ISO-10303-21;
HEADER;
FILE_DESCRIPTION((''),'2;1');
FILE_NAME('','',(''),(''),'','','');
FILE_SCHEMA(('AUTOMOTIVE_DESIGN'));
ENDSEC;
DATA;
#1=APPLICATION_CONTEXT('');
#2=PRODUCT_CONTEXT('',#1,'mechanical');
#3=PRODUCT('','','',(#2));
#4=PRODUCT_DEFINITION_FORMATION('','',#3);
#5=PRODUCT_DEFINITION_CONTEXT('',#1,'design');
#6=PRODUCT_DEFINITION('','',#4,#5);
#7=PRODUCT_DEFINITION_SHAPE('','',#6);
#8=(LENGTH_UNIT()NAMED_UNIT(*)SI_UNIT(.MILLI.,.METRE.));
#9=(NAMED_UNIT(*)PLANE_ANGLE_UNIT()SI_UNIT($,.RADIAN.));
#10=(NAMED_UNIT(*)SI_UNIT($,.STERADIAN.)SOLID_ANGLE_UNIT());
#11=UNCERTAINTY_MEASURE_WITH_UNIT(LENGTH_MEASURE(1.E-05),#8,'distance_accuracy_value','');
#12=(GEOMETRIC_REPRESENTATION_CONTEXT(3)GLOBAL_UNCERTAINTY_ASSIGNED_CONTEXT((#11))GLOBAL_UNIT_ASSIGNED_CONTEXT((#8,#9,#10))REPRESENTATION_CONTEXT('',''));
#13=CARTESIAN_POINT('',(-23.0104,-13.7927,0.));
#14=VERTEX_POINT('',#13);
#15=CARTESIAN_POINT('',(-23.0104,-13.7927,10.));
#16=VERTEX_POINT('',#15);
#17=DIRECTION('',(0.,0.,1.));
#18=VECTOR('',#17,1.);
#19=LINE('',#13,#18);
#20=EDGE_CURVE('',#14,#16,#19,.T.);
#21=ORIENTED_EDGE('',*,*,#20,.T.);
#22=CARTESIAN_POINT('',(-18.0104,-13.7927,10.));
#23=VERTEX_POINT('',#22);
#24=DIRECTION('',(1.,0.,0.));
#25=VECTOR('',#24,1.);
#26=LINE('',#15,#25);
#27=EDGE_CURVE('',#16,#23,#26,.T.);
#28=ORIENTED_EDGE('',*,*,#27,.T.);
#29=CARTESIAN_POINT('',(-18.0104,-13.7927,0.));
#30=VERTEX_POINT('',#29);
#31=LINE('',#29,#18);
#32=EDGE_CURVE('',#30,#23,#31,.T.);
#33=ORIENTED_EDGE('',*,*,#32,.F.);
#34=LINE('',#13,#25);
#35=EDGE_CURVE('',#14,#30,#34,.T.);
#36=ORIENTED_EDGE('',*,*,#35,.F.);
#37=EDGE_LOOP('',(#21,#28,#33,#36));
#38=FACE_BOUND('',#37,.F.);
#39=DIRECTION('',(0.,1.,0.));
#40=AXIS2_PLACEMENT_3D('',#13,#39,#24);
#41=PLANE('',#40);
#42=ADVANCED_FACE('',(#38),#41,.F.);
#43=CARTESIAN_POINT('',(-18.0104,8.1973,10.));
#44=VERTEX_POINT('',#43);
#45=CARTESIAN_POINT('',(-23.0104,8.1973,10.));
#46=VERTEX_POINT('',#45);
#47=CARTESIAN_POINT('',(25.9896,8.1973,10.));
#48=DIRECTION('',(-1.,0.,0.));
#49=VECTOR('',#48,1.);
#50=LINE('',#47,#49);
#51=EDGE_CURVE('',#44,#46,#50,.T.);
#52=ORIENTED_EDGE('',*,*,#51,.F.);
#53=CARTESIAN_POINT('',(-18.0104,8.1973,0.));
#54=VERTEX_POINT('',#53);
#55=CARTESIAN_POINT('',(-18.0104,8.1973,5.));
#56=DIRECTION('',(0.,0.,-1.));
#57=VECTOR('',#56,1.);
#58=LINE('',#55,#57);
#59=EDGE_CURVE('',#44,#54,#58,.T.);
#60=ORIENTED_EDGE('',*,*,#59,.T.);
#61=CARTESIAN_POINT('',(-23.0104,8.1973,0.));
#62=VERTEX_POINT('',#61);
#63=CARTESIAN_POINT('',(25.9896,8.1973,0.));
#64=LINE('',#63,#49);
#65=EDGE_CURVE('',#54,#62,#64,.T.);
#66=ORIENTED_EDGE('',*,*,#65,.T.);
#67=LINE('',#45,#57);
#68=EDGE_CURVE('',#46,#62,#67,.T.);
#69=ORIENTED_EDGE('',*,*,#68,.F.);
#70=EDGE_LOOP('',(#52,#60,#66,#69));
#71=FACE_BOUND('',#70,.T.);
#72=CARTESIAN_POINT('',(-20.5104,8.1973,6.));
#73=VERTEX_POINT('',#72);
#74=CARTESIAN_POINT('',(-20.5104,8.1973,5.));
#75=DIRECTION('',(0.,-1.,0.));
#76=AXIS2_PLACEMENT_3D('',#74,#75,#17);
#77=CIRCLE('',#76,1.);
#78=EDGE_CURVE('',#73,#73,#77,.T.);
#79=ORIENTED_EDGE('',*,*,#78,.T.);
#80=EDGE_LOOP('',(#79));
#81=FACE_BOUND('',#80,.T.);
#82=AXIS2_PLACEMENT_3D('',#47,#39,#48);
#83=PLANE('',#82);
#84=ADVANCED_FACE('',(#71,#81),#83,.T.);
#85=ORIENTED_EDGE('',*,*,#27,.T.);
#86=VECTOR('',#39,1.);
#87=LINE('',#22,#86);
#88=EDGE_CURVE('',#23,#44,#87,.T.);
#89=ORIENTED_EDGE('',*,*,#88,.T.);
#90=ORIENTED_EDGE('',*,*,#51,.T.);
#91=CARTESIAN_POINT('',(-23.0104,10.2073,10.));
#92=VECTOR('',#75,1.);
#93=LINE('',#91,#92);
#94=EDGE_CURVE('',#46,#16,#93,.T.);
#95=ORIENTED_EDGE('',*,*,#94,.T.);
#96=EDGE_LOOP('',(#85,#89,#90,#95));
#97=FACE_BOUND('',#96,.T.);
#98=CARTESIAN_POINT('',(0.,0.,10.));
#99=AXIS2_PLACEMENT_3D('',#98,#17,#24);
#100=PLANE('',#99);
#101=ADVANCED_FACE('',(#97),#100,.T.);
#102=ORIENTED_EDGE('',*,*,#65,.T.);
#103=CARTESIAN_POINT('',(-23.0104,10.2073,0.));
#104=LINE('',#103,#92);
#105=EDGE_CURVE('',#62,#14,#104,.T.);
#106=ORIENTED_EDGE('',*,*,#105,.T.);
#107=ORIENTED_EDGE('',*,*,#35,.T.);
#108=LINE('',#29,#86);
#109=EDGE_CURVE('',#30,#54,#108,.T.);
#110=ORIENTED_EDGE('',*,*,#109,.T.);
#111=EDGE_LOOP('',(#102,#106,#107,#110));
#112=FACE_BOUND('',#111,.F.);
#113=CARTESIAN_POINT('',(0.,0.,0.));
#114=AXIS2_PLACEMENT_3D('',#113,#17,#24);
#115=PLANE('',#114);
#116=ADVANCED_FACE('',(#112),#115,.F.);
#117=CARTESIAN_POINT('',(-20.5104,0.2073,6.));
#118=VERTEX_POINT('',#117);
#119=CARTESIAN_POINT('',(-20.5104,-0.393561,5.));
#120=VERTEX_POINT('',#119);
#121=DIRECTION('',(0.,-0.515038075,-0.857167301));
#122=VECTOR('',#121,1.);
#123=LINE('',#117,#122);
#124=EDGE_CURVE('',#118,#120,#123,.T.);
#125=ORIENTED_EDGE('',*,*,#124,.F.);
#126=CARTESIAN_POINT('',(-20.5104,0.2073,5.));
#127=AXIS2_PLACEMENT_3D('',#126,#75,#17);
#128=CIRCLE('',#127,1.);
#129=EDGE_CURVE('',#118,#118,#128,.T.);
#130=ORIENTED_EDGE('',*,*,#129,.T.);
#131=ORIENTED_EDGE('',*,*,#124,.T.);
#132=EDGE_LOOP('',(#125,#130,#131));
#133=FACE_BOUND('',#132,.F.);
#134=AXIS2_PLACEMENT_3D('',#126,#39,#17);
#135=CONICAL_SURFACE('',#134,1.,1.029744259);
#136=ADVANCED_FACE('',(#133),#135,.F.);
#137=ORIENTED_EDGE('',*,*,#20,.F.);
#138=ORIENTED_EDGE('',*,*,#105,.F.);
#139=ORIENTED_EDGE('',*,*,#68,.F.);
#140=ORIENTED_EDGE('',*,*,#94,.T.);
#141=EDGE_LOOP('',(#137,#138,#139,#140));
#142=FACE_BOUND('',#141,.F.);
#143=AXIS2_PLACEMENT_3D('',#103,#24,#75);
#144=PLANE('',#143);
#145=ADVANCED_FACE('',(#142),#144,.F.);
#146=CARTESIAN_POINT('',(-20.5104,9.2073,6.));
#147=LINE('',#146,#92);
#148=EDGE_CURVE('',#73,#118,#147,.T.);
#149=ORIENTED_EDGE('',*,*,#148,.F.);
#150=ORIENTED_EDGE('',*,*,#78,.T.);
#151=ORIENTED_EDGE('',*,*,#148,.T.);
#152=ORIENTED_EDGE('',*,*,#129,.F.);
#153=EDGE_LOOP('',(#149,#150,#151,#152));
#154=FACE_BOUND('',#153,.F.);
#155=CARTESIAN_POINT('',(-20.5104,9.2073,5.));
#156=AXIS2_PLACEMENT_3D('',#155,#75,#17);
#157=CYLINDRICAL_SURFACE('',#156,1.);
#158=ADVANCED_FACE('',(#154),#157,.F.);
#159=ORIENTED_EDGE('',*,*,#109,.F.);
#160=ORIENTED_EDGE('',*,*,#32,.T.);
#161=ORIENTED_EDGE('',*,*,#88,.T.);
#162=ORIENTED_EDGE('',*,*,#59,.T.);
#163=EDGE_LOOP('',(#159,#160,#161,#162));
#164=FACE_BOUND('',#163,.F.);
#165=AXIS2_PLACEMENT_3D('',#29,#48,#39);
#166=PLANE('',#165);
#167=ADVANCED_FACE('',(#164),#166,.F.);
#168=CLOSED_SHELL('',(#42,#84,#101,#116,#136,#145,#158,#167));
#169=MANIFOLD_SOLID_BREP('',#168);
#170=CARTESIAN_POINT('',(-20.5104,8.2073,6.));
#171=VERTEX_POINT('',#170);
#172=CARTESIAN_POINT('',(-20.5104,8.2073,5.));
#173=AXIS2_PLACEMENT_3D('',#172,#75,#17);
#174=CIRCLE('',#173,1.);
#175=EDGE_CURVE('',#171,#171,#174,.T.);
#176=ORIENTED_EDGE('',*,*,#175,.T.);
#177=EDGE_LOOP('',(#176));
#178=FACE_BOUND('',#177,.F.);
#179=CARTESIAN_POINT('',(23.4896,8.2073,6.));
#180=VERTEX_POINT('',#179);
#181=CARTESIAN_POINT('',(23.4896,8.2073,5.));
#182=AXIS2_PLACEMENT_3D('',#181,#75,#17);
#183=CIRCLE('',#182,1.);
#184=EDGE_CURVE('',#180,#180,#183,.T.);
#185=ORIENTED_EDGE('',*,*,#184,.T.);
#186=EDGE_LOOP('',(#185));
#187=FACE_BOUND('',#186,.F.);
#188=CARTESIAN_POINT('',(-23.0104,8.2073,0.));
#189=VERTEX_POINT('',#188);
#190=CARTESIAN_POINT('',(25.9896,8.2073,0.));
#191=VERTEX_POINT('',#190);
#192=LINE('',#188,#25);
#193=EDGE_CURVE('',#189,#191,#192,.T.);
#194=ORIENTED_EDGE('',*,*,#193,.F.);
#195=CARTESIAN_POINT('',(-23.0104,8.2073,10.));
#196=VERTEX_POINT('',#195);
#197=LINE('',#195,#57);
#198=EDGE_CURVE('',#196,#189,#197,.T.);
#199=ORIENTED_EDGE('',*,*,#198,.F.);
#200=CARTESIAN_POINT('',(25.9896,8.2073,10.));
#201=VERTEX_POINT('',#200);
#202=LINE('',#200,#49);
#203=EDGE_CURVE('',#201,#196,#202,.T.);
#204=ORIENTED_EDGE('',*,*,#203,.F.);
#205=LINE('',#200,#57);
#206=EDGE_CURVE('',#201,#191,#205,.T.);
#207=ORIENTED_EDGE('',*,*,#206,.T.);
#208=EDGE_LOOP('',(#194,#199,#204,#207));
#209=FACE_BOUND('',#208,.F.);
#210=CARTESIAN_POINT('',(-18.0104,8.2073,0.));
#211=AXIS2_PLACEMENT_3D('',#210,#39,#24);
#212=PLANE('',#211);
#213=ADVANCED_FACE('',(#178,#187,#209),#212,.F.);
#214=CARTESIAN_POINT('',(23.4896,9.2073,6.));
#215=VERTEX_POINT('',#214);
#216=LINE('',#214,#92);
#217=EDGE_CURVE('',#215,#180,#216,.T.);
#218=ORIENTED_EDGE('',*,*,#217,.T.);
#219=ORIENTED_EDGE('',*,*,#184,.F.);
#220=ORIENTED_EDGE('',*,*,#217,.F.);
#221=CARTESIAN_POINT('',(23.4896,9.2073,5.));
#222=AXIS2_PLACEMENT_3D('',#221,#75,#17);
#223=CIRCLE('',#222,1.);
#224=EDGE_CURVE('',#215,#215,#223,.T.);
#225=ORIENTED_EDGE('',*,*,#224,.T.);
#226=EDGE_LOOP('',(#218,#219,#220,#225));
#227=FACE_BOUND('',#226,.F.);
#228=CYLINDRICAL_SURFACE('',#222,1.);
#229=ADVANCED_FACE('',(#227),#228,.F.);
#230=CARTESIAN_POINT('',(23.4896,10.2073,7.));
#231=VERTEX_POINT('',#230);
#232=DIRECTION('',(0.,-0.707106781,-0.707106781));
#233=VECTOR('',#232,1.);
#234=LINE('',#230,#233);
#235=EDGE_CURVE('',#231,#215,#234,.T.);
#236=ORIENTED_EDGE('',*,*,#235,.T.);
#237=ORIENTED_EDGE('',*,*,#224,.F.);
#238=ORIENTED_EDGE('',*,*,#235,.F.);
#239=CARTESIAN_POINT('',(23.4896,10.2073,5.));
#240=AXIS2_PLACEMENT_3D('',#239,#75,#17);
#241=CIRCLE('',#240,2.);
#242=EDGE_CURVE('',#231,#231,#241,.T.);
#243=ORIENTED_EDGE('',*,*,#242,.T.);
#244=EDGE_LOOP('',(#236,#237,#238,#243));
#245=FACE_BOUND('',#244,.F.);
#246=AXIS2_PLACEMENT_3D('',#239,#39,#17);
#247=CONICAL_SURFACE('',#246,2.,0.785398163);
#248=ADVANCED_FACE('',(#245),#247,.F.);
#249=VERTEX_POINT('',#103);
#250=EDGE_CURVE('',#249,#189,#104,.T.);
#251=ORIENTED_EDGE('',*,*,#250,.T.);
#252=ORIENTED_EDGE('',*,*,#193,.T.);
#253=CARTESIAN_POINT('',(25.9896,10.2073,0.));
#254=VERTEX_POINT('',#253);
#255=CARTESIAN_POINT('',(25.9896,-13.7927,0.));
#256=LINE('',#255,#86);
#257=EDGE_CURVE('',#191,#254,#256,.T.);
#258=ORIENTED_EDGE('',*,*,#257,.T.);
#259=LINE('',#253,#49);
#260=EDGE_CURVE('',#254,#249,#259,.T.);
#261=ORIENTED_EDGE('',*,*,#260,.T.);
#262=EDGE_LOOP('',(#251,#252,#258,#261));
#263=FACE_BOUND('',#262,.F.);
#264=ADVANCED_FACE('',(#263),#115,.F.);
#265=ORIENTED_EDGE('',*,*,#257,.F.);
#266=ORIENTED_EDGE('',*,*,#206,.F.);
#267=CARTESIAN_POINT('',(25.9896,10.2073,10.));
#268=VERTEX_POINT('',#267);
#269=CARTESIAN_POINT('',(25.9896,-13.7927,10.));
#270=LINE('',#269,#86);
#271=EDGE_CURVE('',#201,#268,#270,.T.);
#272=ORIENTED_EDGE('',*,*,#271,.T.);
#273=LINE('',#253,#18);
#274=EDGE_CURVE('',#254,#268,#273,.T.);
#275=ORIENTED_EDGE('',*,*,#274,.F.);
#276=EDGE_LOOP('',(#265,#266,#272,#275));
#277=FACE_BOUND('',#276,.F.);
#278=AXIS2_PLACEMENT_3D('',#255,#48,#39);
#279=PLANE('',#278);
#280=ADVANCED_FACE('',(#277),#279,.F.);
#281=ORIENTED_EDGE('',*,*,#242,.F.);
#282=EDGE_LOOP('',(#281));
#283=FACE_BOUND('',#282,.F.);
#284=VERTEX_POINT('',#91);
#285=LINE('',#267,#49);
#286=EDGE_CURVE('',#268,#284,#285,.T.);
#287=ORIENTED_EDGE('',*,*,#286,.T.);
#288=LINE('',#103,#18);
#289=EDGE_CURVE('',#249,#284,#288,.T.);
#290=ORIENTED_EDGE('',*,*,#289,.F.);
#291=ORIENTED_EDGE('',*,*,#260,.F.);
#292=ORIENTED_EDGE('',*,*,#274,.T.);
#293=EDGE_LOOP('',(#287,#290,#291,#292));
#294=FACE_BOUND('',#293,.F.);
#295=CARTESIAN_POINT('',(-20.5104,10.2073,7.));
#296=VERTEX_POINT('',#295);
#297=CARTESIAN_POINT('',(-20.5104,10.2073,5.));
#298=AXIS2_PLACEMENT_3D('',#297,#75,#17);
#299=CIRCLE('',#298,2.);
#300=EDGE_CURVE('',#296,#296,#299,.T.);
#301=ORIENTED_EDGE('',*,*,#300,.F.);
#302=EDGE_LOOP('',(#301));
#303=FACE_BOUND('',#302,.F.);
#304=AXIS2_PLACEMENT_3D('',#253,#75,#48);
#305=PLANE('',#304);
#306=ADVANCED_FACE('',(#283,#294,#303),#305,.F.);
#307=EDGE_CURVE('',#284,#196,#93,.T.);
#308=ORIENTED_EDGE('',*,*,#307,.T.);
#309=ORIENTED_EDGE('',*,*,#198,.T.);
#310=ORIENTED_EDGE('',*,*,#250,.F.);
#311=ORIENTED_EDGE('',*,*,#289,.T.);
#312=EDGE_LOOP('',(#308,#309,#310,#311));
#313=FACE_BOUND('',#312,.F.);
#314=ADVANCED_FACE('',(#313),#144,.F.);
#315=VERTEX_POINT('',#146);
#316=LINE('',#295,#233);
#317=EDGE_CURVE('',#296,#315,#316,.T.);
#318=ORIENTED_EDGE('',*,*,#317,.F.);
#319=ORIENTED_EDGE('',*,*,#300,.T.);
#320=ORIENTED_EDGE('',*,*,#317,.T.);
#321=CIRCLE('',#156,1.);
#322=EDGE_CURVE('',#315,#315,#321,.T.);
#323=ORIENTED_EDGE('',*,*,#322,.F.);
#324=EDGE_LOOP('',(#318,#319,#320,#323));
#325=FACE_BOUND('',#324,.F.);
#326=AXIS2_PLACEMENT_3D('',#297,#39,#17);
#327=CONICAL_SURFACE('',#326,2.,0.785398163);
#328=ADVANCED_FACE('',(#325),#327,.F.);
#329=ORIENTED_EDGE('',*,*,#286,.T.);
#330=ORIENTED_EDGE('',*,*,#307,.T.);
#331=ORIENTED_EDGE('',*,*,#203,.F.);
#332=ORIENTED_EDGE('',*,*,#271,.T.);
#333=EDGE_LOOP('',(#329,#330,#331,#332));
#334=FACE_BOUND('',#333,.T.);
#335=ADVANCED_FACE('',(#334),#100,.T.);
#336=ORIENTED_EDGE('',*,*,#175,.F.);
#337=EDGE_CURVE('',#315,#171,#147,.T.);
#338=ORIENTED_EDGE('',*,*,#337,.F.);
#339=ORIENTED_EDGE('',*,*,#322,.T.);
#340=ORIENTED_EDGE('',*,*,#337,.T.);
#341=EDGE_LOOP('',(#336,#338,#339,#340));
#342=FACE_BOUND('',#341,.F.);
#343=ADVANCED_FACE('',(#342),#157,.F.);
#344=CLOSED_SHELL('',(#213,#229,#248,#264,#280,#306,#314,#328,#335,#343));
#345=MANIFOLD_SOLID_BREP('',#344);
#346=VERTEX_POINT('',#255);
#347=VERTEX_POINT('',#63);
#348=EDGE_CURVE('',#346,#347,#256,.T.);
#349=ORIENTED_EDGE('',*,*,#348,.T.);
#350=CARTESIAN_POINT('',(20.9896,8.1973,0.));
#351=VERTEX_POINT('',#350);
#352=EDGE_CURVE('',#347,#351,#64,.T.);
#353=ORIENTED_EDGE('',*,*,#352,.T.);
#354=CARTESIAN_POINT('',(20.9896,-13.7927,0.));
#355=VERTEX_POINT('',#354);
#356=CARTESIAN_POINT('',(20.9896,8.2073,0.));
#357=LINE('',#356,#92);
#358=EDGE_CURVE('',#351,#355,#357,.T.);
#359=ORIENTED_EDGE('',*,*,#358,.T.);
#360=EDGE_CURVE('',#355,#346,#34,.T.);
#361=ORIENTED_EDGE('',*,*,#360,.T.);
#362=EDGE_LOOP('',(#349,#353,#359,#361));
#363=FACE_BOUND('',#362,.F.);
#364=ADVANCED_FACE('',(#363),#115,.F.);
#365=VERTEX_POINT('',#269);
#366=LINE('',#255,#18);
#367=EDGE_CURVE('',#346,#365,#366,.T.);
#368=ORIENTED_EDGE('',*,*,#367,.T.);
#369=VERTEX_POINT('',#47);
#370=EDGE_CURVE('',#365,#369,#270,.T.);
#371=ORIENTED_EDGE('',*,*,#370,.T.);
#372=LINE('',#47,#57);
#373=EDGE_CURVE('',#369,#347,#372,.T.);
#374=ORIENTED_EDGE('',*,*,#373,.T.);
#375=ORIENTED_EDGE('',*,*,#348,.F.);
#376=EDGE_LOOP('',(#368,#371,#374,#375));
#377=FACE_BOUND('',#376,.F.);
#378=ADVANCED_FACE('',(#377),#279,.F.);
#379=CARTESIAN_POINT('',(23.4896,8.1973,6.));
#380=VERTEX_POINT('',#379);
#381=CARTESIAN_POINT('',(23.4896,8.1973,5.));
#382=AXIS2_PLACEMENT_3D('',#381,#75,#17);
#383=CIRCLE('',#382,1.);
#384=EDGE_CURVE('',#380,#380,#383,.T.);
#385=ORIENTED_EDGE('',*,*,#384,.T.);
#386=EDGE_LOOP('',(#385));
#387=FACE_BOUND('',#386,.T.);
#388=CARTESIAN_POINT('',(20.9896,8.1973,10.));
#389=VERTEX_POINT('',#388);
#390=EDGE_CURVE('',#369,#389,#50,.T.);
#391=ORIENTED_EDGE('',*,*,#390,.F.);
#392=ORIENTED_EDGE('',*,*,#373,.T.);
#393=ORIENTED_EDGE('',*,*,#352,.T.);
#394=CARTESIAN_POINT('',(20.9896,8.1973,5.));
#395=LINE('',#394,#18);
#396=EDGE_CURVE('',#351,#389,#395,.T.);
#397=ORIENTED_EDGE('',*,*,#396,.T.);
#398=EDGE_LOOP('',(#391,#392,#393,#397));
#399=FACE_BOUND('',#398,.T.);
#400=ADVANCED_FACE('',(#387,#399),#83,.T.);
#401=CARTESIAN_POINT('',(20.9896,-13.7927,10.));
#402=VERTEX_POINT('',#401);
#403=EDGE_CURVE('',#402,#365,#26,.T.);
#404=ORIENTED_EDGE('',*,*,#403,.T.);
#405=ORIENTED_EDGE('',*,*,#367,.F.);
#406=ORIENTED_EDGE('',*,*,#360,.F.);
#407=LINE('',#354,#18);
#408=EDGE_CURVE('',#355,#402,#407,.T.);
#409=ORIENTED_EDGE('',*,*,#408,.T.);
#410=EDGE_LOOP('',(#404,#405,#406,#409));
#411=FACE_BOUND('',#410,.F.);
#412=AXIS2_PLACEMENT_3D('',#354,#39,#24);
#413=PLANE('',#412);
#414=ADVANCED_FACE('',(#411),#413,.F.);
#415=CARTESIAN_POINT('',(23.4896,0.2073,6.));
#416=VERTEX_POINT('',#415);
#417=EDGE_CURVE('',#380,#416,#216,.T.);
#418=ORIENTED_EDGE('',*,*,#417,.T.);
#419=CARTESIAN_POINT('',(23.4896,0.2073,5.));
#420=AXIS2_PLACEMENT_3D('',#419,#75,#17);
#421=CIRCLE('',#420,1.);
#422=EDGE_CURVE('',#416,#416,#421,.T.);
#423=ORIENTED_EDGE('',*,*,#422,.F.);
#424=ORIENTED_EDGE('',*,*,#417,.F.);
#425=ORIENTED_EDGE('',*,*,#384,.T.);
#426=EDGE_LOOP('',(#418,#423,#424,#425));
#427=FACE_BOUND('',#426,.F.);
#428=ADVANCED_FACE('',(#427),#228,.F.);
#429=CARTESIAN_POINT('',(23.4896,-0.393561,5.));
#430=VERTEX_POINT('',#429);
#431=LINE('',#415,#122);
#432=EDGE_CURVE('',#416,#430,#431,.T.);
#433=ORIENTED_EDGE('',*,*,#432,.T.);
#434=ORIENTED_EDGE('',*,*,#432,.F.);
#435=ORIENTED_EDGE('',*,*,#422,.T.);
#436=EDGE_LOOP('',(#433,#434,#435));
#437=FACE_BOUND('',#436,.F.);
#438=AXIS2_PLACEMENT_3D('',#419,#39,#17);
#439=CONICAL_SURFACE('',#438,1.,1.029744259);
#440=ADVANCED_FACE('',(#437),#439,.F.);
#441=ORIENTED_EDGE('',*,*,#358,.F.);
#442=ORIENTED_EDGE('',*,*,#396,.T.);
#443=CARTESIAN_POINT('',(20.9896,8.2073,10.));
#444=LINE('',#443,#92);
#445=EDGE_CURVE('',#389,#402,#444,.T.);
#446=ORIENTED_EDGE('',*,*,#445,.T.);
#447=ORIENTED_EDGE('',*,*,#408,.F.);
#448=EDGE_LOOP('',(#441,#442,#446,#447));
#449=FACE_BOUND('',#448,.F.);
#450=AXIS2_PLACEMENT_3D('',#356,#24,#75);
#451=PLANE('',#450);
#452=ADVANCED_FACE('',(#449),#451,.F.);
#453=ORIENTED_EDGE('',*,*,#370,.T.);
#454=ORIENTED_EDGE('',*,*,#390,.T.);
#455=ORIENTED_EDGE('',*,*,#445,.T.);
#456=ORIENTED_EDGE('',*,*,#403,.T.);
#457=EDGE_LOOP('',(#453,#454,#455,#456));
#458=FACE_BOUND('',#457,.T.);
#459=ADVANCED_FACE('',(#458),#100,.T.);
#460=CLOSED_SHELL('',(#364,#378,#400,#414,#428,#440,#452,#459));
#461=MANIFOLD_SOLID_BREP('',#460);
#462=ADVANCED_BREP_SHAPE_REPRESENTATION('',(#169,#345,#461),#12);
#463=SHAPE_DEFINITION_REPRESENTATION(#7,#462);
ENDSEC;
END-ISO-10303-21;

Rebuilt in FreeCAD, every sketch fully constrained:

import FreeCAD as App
import Part
import Sketcher


def add_polygon(sketch, points):
    """Adds a closed chain of lines whose ends are joined by coincident constraints."""
    first, n = sketch.GeometryCount, len(points)
    for a, b in zip(points, points[1:] + points[:1]):
        sketch.addGeometry(Part.LineSegment(App.Vector(*a, 0), App.Vector(*b, 0)), False)
    for i in range(n):
        sketch.addConstraint(Sketcher.Constraint("Coincident", first + i, 2, first + (i + 1) % n, 1))

doc = App.newDocument("Part")
body = doc.addObject("PartDesign::Body", "Body")
body.AllowCompound = True

# Sketch on XY plane
sketch1 = doc.addObject("Sketcher::SketchObject", "Sketch")
body.addObject(sketch1)
sketch1.AttachmentSupport = (doc.XY_Plane, [""])
sketch1.MapMode = "FlatFace"
add_polygon(sketch1, [(-18, -14), (-18, 8), (21, 8), (21, -14), (26, -14), (26, 10), (-23, 10), (-23, -14)])  # lines 0-7
sketch1.addConstraint(Sketcher.Constraint("Vertical", 0))
sketch1.addConstraint(Sketcher.Constraint("Horizontal", 1))
sketch1.addConstraint(Sketcher.Constraint("Vertical", 2))
sketch1.addConstraint(Sketcher.Constraint("Horizontal", 3))
sketch1.addConstraint(Sketcher.Constraint("Vertical", 4))
sketch1.addConstraint(Sketcher.Constraint("Horizontal", 5))
sketch1.addConstraint(Sketcher.Constraint("Vertical", 6))
sketch1.addConstraint(Sketcher.Constraint("Horizontal", 7))
sketch1.addConstraint(Sketcher.Constraint("Horizontal", 3, 2, 6, 2))
sketch1.addConstraint(Sketcher.Constraint("Equal", 3, 7))
sketch1.addConstraint(Sketcher.Constraint("DistanceX", 1, 1, 1, 2, 39.0))
sketch1.addConstraint(Sketcher.Constraint("DistanceX", 3, 1, 3, 2, 5.0))
sketch1.addConstraint(Sketcher.Constraint("DistanceY", 0, 1, 0, 2, 22.0))
sketch1.addConstraint(Sketcher.Constraint("DistanceY", 1, 2, 4, 2, 2.0))
sketch1.addConstraint(Sketcher.Constraint("DistanceX", 0, 2, -1, 1, 18.0104))
sketch1.addConstraint(Sketcher.Constraint("DistanceY", -1, 1, 0, 2, 8.2073))
pad1 = doc.addObject("PartDesign::Pad", "Pad")
body.addObject(pad1)
pad1.Profile = sketch1
pad1.Length = 10

# Sketch on XZ plane
sketch2 = doc.addObject("Sketcher::SketchObject", "Sketch001")
body.addObject(sketch2)
sketch2.AttachmentSupport = (doc.XZ_Plane, [""])
sketch2.MapMode = "FlatFace"
sketch2.AttachmentOffset = App.Placement(App.Vector(0, 0, -10.2073), App.Rotation())
sketch2.addGeometry(Part.Circle(App.Vector(-20.5, 5, 0), App.Vector(0, 0, 1), 1), False)
sketch2.addGeometry(Part.Circle(App.Vector(23.5, 5, 0), App.Vector(0, 0, 1), 1), False)
sketch2.addConstraint(Sketcher.Constraint("Equal", 0, 1))
sketch2.addConstraint(Sketcher.Constraint("Horizontal", 0, 3, 1, 3))
sketch2.addConstraint(Sketcher.Constraint("Diameter", 0, 2.0))
sketch2.addConstraint(Sketcher.Constraint("DistanceY", -1, 1, 0, 3, 5.0))
sketch2.addConstraint(Sketcher.Constraint("DistanceX", 0, 3, 1, 3, 44.0))
sketch2.addConstraint(Sketcher.Constraint("DistanceX", 0, 3, -1, 1, 20.5104))
doc.recompute()
hole = doc.addObject("PartDesign::Hole", "Hole")
body.addObject(hole)
hole.Profile = sketch2
hole.ThreadType = "None"
hole.Diameter = 2
hole.DepthType = "Dimension"
hole.Depth = 10
hole.DrillPoint = "Angled"
hole.DrillPointAngle = 118
hole.HoleCutType = "Countersink"
hole.HoleCutDiameter = 4
hole.HoleCutCountersinkAngle = 90
hole.Reversed = True

# Sketch on XY plane
sketch3 = doc.addObject("Sketcher::SketchObject", "Sketch002")
body.addObject(sketch3)
sketch3.AttachmentSupport = (doc.XY_Plane, [""])
sketch3.MapMode = "FlatFace"
sketch3.AttachmentOffset = App.Placement(App.Vector(0, 0, 10), App.Rotation())
add_polygon(sketch3, [(25.99, 8.207), (-23.01, 8.207), (-23.01, 8.197), (25.99, 8.197)])  # lines 0-3
sketch3.addConstraint(Sketcher.Constraint("Horizontal", 0))
sketch3.addConstraint(Sketcher.Constraint("Vertical", 1))
sketch3.addConstraint(Sketcher.Constraint("Horizontal", 2))
sketch3.addConstraint(Sketcher.Constraint("Vertical", 3))
sketch3.addConstraint(Sketcher.Constraint("DistanceY", 1, 2, 1, 1, 0.01))
sketch3.addConstraint(Sketcher.Constraint("DistanceX", 0, 2, 0, 1, 49.0))
sketch3.addConstraint(Sketcher.Constraint("DistanceX", 0, 2, -1, 1, 23.0104))
sketch3.addConstraint(Sketcher.Constraint("DistanceY", -1, 1, 0, 2, 8.2073))
pocket1 = doc.addObject("PartDesign::Pocket", "Pocket")
body.addObject(pocket1)
pocket1.Profile = sketch3
pocket1.Length = 10

doc.recompute()
